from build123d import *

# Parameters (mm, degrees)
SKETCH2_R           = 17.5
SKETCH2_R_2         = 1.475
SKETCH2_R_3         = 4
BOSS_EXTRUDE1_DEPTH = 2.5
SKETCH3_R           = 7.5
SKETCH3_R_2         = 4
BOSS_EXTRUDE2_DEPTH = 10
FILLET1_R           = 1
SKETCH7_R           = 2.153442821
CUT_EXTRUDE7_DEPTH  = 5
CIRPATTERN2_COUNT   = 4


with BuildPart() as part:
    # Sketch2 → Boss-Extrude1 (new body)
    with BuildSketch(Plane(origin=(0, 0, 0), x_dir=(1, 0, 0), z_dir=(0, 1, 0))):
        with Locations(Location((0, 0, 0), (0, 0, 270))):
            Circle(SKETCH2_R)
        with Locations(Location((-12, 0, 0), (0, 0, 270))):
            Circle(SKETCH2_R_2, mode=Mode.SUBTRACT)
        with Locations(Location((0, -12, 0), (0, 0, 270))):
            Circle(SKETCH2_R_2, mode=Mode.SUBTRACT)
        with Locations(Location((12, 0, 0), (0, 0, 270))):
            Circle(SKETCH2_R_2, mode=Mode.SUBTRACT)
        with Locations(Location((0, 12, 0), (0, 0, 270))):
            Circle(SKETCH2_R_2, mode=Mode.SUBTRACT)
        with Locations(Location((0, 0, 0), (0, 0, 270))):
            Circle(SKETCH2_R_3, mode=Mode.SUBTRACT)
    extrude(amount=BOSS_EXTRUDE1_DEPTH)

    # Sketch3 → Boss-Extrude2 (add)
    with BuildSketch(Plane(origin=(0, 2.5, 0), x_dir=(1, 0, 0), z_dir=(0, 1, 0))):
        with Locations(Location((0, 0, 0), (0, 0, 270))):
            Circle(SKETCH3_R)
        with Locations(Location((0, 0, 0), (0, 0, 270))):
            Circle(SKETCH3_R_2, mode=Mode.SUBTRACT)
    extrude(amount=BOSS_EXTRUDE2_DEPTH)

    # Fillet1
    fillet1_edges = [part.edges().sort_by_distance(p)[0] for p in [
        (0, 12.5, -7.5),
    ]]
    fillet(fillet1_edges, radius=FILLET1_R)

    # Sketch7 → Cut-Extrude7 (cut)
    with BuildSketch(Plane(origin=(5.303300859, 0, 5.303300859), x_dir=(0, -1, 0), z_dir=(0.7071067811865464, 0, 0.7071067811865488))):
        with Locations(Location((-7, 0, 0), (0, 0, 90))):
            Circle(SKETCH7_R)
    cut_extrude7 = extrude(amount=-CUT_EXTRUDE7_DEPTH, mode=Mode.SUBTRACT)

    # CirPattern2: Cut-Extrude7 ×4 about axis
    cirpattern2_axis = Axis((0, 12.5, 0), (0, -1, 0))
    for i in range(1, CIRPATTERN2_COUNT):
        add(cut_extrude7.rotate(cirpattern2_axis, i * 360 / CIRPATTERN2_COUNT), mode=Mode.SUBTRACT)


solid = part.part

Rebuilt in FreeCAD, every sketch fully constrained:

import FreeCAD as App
import Part
import Sketcher
from FreeCAD import Vector
Q = App.Units.Quantity


def edges_at(feature, points):
    """Names of the edges that pass closest to the given points."""
    edges = feature.Shape.Edges
    near = lambda p: min(range(len(edges)), key=lambda i: edges[i].distToShape(Part.Vertex(*p))[0])
    return sorted({f"Edge{near(p) + 1}" for p in points})

doc = App.newDocument("Part")
body = doc.addObject("PartDesign::Body", "Body")

sketch1 = doc.addObject("Sketcher::SketchObject", "Sketch")
body.addObject(sketch1)
sketch1.AttachmentSupport = (doc.XZ_Plane, [""])
sketch1.MapMode = "FlatFace"
sketch1.addGeometry(Part.Circle(Vector(0, 0, 0), Vector(0, 0, 1), 17.5), False)
sketch1.addGeometry(Part.Circle(Vector(0, -12, 0), Vector(0, 0, 1), 1.475), False)
sketch1.addGeometry(Part.Circle(Vector(-12, 0, 0), Vector(0, 0, 1), 1.475), False)
sketch1.addGeometry(Part.Circle(Vector(12, 0, 0), Vector(0, 0, 1), 1.475), False)
sketch1.addGeometry(Part.Circle(Vector(0, 0, 0), Vector(0, 0, 1), 4), False)
sketch1.addGeometry(Part.Circle(Vector(0, 12, 0), Vector(0, 0, 1), 1.475), False)
sketch1.addConstraint(Sketcher.Constraint("Coincident", 0, 3, -1, 1))
sketch1.addConstraint(Sketcher.Constraint("Coincident", 4, 3, -1, 1))
sketch1.addConstraint(Sketcher.Constraint("Equal", 1, 2))
sketch1.addConstraint(Sketcher.Constraint("Equal", 2, 3))
sketch1.addConstraint(Sketcher.Constraint("Equal", 3, 5))
sketch1.addConstraint(Sketcher.Constraint("Symmetric", 2, 3, 3, 3, -1, 1))
sketch1.addConstraint(Sketcher.Constraint("Symmetric", 1, 3, 5, 3, -1, 1))
sketch1.addConstraint(Sketcher.Constraint("PointOnObject", 1, 3, -2))
sketch1.addConstraint(Sketcher.Constraint("PointOnObject", 2, 3, -1))
sketch1.addConstraint(Sketcher.Constraint("Diameter", 0, Q("35 mm")))
sketch1.addConstraint(Sketcher.Constraint("Diameter", 4, Q("8 mm")))
sketch1.addConstraint(Sketcher.Constraint("Diameter", 1, Q("2.95 mm")))
sketch1.addConstraint(Sketcher.Constraint("DistanceY", 1, 3, -1, 1, Q("12 mm")))
sketch1.addConstraint(Sketcher.Constraint("DistanceX", 2, 3, -1, 1, Q("12 mm")))
pad1 = doc.addObject("PartDesign::Pad", "Pad")
body.addObject(pad1)
pad1.Profile = sketch1
pad1.Length = 2.5
pad1.Reversed = True

sketch2 = doc.addObject("Sketcher::SketchObject", "Sketch001")
body.addObject(sketch2)
sketch2.AttachmentSupport = (doc.XZ_Plane, [""])
sketch2.MapMode = "FlatFace"
sketch2.AttachmentOffset = App.Placement(Vector(0, 0, -2.5), App.Rotation())
sketch2.addGeometry(Part.Circle(Vector(0, 0, 0), Vector(0, 0, 1), 7.5), False)
sketch2.addGeometry(Part.Circle(Vector(0, 0, 0), Vector(0, 0, 1), 4), False)
sketch2.addConstraint(Sketcher.Constraint("Coincident", 0, 3, -1, 1))
sketch2.addConstraint(Sketcher.Constraint("Coincident", 1, 3, -1, 1))
sketch2.addConstraint(Sketcher.Constraint("Diameter", 0, Q("15 mm")))
sketch2.addConstraint(Sketcher.Constraint("Diameter", 1, Q("8 mm")))
pad2 = doc.addObject("PartDesign::Pad", "Pad001")
body.addObject(pad2)
pad2.Profile = sketch2
pad2.Length = 10
pad2.Reversed = True
doc.recompute()

fillet = doc.addObject("PartDesign::Fillet", "Fillet")
body.addObject(fillet)
fillet.Base = (pad2, edges_at(pad2, [(0, 12.5, -7.5)]))
fillet.Radius = 1

sketch3 = doc.addObject("Sketcher::SketchObject", "Sketch002")
body.addObject(sketch3)
sketch3.Placement = App.Placement(Vector(5.303301, 0, 5.303301), App.Rotation(Vector(0, -1, 0), Vector(0.707106781, 0, -0.707106781), Vector(0.707106781, 0, 0.707106781), "ZXY"))
sketch3.addGeometry(Part.Circle(Vector(-7, 0, 0), Vector(0, 0, 1), 2.153443), False)
sketch3.addConstraint(Sketcher.Constraint("PointOnObject", 0, 3, -1))
sketch3.addConstraint(Sketcher.Constraint("DistanceX", 0, 3, -1, 1, Q("7 mm")))
sketch3.addConstraint(Sketcher.Constraint("Diameter", 0, Q("4.306886 mm")))
pocket1 = doc.addObject("PartDesign::Pocket", "Pocket")
body.addObject(pocket1)
pocket1.Profile = sketch3
pocket1.Length = 5
doc.recompute()

polarpattern = doc.addObject("PartDesign::PolarPattern", "PolarPattern")
body.addObject(polarpattern)
polarpattern.Originals = [pocket1]
polarpattern.Axis = (doc.Y_Axis, [""])
polarpattern.Angle = 360
polarpattern.Occurrences = 4
body.Tip = polarpattern

doc.recompute()
